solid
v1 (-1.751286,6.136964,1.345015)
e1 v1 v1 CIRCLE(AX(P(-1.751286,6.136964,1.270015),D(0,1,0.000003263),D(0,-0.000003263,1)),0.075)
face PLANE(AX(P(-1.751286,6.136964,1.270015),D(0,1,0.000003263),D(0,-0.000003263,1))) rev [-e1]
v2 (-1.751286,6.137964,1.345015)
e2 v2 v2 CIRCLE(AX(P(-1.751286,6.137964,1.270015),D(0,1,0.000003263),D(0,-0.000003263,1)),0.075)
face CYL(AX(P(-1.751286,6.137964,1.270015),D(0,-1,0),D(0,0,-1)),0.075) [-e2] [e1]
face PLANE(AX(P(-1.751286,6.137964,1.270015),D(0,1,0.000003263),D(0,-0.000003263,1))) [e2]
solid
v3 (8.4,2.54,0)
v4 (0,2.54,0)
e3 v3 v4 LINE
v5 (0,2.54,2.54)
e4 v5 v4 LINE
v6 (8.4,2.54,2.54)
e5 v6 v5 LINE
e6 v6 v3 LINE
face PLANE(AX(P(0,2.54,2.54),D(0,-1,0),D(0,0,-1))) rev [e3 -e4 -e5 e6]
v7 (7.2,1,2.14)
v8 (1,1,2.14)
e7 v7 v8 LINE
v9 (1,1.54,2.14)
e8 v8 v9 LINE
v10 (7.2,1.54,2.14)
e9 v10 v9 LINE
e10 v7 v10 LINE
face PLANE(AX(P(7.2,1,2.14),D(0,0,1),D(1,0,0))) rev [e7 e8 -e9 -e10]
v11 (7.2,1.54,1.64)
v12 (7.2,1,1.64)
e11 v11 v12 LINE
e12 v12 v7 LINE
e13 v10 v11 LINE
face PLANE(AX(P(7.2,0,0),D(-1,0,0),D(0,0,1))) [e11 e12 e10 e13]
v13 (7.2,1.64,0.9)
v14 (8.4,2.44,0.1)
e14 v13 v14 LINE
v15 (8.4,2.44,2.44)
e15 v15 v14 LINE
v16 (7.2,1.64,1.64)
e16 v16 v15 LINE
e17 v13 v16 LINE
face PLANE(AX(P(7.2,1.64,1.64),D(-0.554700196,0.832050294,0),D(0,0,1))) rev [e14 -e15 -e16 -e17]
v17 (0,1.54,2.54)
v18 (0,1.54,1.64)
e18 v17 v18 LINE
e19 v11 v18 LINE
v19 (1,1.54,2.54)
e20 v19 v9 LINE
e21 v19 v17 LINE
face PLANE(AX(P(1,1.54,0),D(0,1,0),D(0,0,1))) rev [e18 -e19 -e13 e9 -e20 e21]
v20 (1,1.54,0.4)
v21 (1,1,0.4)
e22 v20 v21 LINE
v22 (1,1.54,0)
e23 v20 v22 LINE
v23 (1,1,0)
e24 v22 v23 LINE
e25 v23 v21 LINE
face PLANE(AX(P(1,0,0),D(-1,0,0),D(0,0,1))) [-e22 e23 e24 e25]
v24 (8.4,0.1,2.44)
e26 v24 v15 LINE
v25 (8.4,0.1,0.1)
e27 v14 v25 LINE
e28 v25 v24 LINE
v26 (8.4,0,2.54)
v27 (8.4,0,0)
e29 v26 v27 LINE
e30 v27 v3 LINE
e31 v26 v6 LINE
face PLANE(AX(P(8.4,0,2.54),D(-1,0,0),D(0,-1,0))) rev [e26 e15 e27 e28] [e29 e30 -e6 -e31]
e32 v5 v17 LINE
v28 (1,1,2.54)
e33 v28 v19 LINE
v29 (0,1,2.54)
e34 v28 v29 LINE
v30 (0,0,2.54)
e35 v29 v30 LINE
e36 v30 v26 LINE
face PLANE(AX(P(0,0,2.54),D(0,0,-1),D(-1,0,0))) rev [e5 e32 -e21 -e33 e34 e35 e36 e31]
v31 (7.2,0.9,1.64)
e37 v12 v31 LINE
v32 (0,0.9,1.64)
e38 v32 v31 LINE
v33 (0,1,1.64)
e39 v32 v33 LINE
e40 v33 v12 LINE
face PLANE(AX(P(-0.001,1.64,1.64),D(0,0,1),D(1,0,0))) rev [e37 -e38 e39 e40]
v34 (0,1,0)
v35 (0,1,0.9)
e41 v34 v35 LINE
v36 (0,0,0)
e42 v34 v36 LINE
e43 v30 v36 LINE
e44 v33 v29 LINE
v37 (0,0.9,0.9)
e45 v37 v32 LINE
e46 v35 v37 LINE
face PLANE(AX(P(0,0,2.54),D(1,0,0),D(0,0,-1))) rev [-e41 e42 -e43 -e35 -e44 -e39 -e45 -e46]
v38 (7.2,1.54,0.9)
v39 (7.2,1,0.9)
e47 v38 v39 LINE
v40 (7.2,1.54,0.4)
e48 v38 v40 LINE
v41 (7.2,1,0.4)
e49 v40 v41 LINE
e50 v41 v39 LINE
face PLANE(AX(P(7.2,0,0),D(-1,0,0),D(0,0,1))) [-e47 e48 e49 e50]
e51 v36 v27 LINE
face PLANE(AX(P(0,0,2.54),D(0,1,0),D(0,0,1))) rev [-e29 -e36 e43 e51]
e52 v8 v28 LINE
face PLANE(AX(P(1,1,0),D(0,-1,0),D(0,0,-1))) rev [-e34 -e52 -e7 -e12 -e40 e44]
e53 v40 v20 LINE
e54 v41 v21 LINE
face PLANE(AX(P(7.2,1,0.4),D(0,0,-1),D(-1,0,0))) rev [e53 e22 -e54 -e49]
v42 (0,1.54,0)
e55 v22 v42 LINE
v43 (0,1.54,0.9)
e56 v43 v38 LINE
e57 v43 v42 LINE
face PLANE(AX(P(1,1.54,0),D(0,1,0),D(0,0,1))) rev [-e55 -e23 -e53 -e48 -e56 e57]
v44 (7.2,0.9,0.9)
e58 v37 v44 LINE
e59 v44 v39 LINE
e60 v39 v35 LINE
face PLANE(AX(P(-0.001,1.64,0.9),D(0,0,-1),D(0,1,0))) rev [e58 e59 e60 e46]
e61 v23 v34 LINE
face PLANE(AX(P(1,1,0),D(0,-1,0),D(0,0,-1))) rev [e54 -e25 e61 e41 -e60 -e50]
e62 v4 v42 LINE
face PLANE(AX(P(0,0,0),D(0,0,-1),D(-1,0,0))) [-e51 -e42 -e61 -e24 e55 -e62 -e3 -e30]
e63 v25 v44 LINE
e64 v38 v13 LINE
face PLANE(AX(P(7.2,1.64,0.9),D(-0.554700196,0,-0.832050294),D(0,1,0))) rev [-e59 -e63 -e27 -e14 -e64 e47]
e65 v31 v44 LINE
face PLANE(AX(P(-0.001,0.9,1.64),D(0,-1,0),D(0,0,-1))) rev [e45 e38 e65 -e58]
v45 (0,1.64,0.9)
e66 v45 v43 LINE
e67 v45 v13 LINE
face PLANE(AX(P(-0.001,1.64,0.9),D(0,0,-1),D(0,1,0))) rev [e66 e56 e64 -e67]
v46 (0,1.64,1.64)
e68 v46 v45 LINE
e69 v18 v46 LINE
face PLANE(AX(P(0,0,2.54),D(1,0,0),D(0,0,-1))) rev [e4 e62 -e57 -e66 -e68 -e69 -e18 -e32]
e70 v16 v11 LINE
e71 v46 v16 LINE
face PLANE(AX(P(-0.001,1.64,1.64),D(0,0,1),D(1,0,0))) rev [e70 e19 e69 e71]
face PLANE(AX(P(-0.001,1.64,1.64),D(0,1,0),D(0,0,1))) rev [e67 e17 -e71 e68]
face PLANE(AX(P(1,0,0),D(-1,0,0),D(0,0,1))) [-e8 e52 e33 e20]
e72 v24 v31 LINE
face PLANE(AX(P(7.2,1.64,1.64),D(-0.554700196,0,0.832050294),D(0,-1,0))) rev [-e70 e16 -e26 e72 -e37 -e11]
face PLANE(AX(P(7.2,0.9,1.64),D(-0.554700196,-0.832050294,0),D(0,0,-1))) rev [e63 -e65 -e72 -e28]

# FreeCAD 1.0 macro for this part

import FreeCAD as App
import Part
import Sketcher
Q = App.Units.Quantity


def edges_at(feature, points):
    """Names of the edges that pass closest to the given points."""
    edges = feature.Shape.Edges
    near = lambda p: min(range(len(edges)), key=lambda i: edges[i].distToShape(Part.Vertex(*p))[0])
    return sorted({f"Edge{near(p) + 1}" for p in points})

doc = App.newDocument("Part")
body = doc.addObject("PartDesign::Body", "Body")

# Sketch on XY plane
sketch1 = body.newObject("Sketcher::SketchObject", "Sketch")
sketch1.AttachmentSupport = (doc.getObject("XY_Plane"), [""])
sketch1.MapMode = "FlatFace"
sketch1.addGeometry(Part.LineSegment(App.Vector(0, 2.54, 0), App.Vector(0, 0, 0)), False)
sketch1.addGeometry(Part.LineSegment(App.Vector(0, 0, 0), App.Vector(8.4, 0, 0)), False)
sketch1.addGeometry(Part.LineSegment(App.Vector(8.4, 0, 0), App.Vector(8.4, 2.54, 0)), False)
sketch1.addGeometry(Part.LineSegment(App.Vector(8.4, 2.54, 0), App.Vector(0, 2.54, 0)), False)
sketch1.addConstraint(Sketcher.Constraint("Coincident", 0, 2, 1, 1))
sketch1.addConstraint(Sketcher.Constraint("Coincident", 1, 2, 2, 1))
sketch1.addConstraint(Sketcher.Constraint("Coincident", 2, 2, 3, 1))
sketch1.addConstraint(Sketcher.Constraint("Coincident", 3, 2, 0, 1))
sketch1.addConstraint(Sketcher.Constraint("Vertical", 0))
sketch1.addConstraint(Sketcher.Constraint("Horizontal", 1))
sketch1.addConstraint(Sketcher.Constraint("Vertical", 2))
sketch1.addConstraint(Sketcher.Constraint("Horizontal", 3))
sketch1.addConstraint(Sketcher.Constraint("Coincident", 0, 2, -1, 1))
sketch1.addConstraint(Sketcher.Constraint("DistanceX", 1, 1, 1, 2, Q("8.4 mm")))
sketch1.addConstraint(Sketcher.Constraint("DistanceY", 0, 2, 0, 1, Q("2.54 mm")))
pad1 = body.newObject("PartDesign::Pad", "Pad")
pad1.Profile = sketch1
pad1.Length = 2.54

# Sketch on YZ plane
sketch2 = body.newObject("Sketcher::SketchObject", "Sketch001")
sketch2.AttachmentSupport = (doc.getObject("YZ_Plane"), [""])
sketch2.MapMode = "FlatFace"
sketch2.AttachmentOffset = App.Placement(App.Vector(0, 0, 8.4), App.Rotation())
sketch2.addGeometry(Part.LineSegment(App.Vector(1.64, 1.64, 0), App.Vector(0.9, 1.64, 0)), False)
sketch2.addGeometry(Part.LineSegment(App.Vector(0.9, 1.64, 0), App.Vector(0.9, 0.9, 0)), False)
sketch2.addGeometry(Part.LineSegment(App.Vector(0.9, 0.9, 0), App.Vector(1.64, 0.9, 0)), False)
sketch2.addGeometry(Part.LineSegment(App.Vector(1.64, 0.9, 0), App.Vector(1.64, 1.64, 0)), False)
sketch2.addConstraint(Sketcher.Constraint("Coincident", 0, 2, 1, 1))
sketch2.addConstraint(Sketcher.Constraint("Coincident", 1, 2, 2, 1))
sketch2.addConstraint(Sketcher.Constraint("Coincident", 2, 2, 3, 1))
sketch2.addConstraint(Sketcher.Constraint("Coincident", 3, 2, 0, 1))
sketch2.addConstraint(Sketcher.Constraint("Horizontal", 0))
sketch2.addConstraint(Sketcher.Constraint("Vertical", 1))
sketch2.addConstraint(Sketcher.Constraint("Horizontal", 2))
sketch2.addConstraint(Sketcher.Constraint("Vertical", 3))
sketch2.addConstraint(Sketcher.Constraint("Equal", 2, 1))
sketch2.addConstraint(Sketcher.Constraint("DistanceX", 0, 2, 0, 1, Q("0.74 mm")))
sketch2.addConstraint(Sketcher.Constraint("DistanceX", -1, 1, 0, 2, Q("0.9 mm")))
sketch2.addConstraint(Sketcher.Constraint("DistanceY", -1, 1, 1, 2, Q("0.9 mm")))
pocket1 = body.newObject("PartDesign::Pocket", "Pocket")
pocket1.Profile = sketch2
pocket1.Type = "UpToFirst"
doc.recompute()

chamfer = body.newObject("PartDesign::Chamfer", "Chamfer")
chamfer.Base = (pocket1, edges_at(pocket1, [
    (8.4, 1.27, 1.64),
    (8.4, 0.9, 1.27),
    (8.4, 1.27, 0.9),
    (8.4, 1.64, 1.27),
]))
chamfer.ChamferType = "Two distances"
chamfer.Size = 0.8
chamfer.Size2 = 1.2
chamfer.FlipDirection = True

# Sketch on YZ plane
sketch3 = body.newObject("Sketcher::SketchObject", "Sketch002")
sketch3.AttachmentSupport = (doc.getObject("YZ_Plane"), [""])
sketch3.MapMode = "FlatFace"
sketch3.addGeometry(Part.LineSegment(App.Vector(1.54, 0, 0), App.Vector(1, 0, 0)), False)
sketch3.addGeometry(Part.LineSegment(App.Vector(1, 0, 0), App.Vector(1, 2.54, 0)), False)
sketch3.addGeometry(Part.LineSegment(App.Vector(1, 2.54, 0), App.Vector(1.54, 2.54, 0)), False)
sketch3.addGeometry(Part.LineSegment(App.Vector(1.54, 2.54, 0), App.Vector(1.54, 0, 0)), False)
sketch3.addConstraint(Sketcher.Constraint("Coincident", 0, 2, 1, 1))
sketch3.addConstraint(Sketcher.Constraint("Coincident", 1, 2, 2, 1))
sketch3.addConstraint(Sketcher.Constraint("Coincident", 2, 2, 3, 1))
sketch3.addConstraint(Sketcher.Constraint("Coincident", 3, 2, 0, 1))
sketch3.addConstraint(Sketcher.Constraint("Horizontal", 0))
sketch3.addConstraint(Sketcher.Constraint("Vertical", 1))
sketch3.addConstraint(Sketcher.Constraint("Horizontal", 2))
sketch3.addConstraint(Sketcher.Constraint("Vertical", 3))
sketch3.addConstraint(Sketcher.Constraint("PointOnObject", 0, 2, -1))
sketch3.addConstraint(Sketcher.Constraint("DistanceX", -1, 1, 0, 2, Q("1 mm")))
sketch3.addConstraint(Sketcher.Constraint("DistanceX", 0, 2, 0, 1, Q("0.54 mm")))
sketch3.addConstraint(Sketcher.Constraint("DistanceY", 1, 1, 1, 2, Q("2.54 mm")))
pocket2 = body.newObject("PartDesign::Pocket", "Pocket001")
pocket2.Profile = sketch3
pocket2.Length = 1
pocket2.Reversed = True

# Sketch on YZ plane
sketch4 = body.newObject("Sketcher::SketchObject", "Sketch003")
sketch4.AttachmentSupport = (doc.getObject("YZ_Plane"), [""])
sketch4.MapMode = "FlatFace"
sketch4.AttachmentOffset = App.Placement(App.Vector(0, 0, 7.2), App.Rotation())
sketch4.addGeometry(Part.LineSegment(App.Vector(1.54, 0.4, 0), App.Vector(1, 0.4, 0)), False)
sketch4.addGeometry(Part.LineSegment(App.Vector(1, 0.4, 0), App.Vector(1, 2.14, 0)), False)
sketch4.addGeometry(Part.LineSegment(App.Vector(1, 2.14, 0), App.Vector(1.54, 2.14, 0)), False)
sketch4.addGeometry(Part.LineSegment(App.Vector(1.54, 2.14, 0), App.Vector(1.54, 0.4, 0)), False)
sketch4.addConstraint(Sketcher.Constraint("Coincident", 0, 2, 1, 1))
sketch4.addConstraint(Sketcher.Constraint("Coincident", 1, 2, 2, 1))
sketch4.addConstraint(Sketcher.Constraint("Coincident", 2, 2, 3, 1))
sketch4.addConstraint(Sketcher.Constraint("Coincident", 3, 2, 0, 1))
sketch4.addConstraint(Sketcher.Constraint("Horizontal", 0))
sketch4.addConstraint(Sketcher.Constraint("Vertical", 1))
sketch4.addConstraint(Sketcher.Constraint("Horizontal", 2))
sketch4.addConstraint(Sketcher.Constraint("Vertical", 3))
sketch4.addConstraint(Sketcher.Constraint("DistanceX", -1, 1, 0, 2, Q("1 mm")))
sketch4.addConstraint(Sketcher.Constraint("DistanceX", 0, 2, 0, 1, Q("0.54 mm")))
sketch4.addConstraint(Sketcher.Constraint("DistanceY", 1, 1, 1, 2, Q("1.74 mm")))
sketch4.addConstraint(Sketcher.Constraint("DistanceY", -1, 1, 0, 2, Q("0.4 mm")))
pocket3 = body.newObject("PartDesign::Pocket", "Pocket002")
pocket3.Profile = sketch4
pocket3.Length = 6.2
body2 = doc.addObject("PartDesign::Body", "Body001")

# Sketch on XZ plane
sketch5 = body2.newObject("Sketcher::SketchObject", "Sketch004")
sketch5.AttachmentSupport = (doc.getObject("XZ_Plane001"), [""])
sketch5.MapMode = "FlatFace"
sketch5.AttachmentOffset = App.Placement(App.Vector(0, 0, -6.136964), App.Rotation())
sketch5.addGeometry(Part.Circle(App.Vector(-1.751286, 1.270015, 0), App.Vector(0, 0, 1), 0.075), False)
sketch5.addConstraint(Sketcher.Constraint("Diameter", 0, Q("0.15 mm")))
sketch5.addConstraint(Sketcher.Constraint("DistanceX", 0, 3, -1, 1, Q("1.751286 mm")))
sketch5.addConstraint(Sketcher.Constraint("DistanceY", -1, 1, 0, 3, Q("1.270015 mm")))
pad2 = body2.newObject("PartDesign::Pad", "Pad001")
pad2.Profile = sketch5
pad2.Length = 0.001
pad2.Reversed = True

doc.recompute()
